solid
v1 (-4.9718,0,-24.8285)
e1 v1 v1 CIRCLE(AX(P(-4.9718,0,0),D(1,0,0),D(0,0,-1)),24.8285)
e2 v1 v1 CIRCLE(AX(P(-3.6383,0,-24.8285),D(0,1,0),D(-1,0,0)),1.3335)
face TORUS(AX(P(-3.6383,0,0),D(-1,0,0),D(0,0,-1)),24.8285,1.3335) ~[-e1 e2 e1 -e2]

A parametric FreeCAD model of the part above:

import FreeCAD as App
import Part
import Sketcher

V = App.Vector
Q = App.Units.Quantity

doc = App.newDocument("Part")
params = doc.addObject("Spreadsheet::Sheet", "Params")
for row, (alias, value) in enumerate([
    ("sketch1_diameter", "0.105 in"),
    ("revolution_angle", "360 deg"),
], start=1):
    params.set(f"A{row}", alias)
    params.set(f"B{row}", "=" + value)
    params.setAlias(f"B{row}", alias)

body = doc.addObject("PartDesign::Body", "Body")

# Sketch on XZ plane
sketch1 = body.newObject("Sketcher::SketchObject", "Sketch")
sketch1.AttachmentSupport = (doc.getObject("XZ_Plane"), [""])
sketch1.MapMode = "FlatFace"
sketch1.addGeometry(Part.Circle(V(-3.6, -24.8, 0), V(0, 0, 1), 1.3), False)
sketch1.addConstraint([
    Sketcher.Constraint("Diameter", 0, Q("0.105 in")),
    Sketcher.Constraint("DistanceY", 0, 3, -1, 1, Q("0.9775 in")),
    Sketcher.Constraint("DistanceX", 0, 3, -1, 1, 3.6383),
])
sketch1.setExpression("Constraints[0]", "Params.sketch1_diameter")
revolution = body.newObject("PartDesign::Revolution", "Revolution")
revolution.Profile = sketch1
revolution.ReferenceAxis = (sketch1, ["H_Axis"])
revolution.setExpression("Angle", "Params.revolution_angle")

doc.recompute()
